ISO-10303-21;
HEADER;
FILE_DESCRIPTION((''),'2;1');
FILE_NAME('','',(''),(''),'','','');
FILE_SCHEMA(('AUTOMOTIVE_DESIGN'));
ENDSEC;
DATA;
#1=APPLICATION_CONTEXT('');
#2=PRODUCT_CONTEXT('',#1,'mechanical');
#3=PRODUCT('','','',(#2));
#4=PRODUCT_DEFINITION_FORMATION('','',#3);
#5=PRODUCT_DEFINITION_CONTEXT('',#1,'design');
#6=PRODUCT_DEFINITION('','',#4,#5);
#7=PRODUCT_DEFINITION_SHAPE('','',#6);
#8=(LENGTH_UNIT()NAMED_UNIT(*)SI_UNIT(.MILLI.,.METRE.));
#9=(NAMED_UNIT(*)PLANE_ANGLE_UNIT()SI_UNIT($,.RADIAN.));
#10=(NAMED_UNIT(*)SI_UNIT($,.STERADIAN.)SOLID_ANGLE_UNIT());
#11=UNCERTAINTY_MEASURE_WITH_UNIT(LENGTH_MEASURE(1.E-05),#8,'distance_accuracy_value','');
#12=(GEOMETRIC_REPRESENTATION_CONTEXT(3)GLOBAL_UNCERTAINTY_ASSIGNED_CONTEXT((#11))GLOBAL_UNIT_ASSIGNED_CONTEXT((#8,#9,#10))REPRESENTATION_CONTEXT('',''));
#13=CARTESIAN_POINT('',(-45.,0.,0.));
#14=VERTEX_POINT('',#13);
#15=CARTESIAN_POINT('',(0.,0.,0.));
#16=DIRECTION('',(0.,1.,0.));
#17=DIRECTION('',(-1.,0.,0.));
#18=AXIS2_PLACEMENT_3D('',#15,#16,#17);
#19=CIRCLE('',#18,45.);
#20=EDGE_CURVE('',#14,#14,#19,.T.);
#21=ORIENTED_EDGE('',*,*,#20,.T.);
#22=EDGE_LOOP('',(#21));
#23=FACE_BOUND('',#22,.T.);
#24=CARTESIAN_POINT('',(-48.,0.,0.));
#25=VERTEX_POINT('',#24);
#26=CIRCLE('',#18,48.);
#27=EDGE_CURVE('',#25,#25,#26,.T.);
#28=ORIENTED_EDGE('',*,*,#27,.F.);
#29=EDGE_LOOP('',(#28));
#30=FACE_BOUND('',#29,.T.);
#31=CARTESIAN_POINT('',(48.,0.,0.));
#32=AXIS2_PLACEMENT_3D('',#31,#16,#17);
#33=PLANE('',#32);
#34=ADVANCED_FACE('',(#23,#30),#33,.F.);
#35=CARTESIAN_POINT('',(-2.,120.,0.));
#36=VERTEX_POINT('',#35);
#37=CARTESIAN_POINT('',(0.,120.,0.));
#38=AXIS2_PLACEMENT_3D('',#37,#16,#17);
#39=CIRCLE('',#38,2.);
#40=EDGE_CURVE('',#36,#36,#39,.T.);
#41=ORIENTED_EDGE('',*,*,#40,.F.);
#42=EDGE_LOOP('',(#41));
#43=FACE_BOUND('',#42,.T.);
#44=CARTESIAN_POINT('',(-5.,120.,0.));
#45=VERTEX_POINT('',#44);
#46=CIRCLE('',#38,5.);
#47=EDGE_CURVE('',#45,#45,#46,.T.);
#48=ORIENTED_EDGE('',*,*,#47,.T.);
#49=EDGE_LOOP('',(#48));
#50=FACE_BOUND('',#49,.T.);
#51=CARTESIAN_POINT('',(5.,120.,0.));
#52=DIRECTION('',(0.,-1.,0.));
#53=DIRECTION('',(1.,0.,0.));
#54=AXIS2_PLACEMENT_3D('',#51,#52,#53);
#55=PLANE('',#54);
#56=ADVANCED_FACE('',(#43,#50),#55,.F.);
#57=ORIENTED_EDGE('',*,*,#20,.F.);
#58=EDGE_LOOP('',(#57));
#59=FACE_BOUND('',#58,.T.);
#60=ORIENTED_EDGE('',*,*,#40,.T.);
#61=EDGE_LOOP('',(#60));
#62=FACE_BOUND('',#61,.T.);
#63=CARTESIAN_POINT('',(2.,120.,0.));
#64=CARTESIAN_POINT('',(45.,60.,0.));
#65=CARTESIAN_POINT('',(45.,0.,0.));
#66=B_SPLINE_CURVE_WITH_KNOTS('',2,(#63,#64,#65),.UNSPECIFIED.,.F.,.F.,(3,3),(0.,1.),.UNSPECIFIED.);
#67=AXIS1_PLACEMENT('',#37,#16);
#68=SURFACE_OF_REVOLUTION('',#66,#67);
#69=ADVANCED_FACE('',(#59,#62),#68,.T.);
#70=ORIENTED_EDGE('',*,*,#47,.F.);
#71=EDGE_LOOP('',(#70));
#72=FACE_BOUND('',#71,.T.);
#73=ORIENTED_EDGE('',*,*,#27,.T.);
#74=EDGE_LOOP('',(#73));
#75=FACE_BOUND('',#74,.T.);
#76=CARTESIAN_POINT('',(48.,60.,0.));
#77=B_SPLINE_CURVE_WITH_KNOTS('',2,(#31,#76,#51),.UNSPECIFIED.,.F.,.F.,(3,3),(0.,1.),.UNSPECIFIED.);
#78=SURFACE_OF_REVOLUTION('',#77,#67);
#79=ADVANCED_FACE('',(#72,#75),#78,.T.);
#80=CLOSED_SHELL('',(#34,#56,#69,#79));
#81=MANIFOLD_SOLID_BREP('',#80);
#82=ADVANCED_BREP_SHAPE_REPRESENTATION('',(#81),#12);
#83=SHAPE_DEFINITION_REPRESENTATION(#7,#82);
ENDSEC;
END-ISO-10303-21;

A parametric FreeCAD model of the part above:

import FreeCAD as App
import Part
import Sketcher

doc = App.newDocument("Part")
body = doc.addObject("PartDesign::Body", "Body")

# Sketch on XY plane
sketch1 = doc.addObject("Sketcher::SketchObject", "Sketch")
body.addObject(sketch1)
sketch1.AttachmentSupport = (doc.XY_Plane, [""])
sketch1.MapMode = "FlatFace"
sketch1.addGeometry([
    Part.LineSegment(App.Vector(5, 120, 0), App.Vector(2, 120, 0)),
    Part.BSplineCurve([App.Vector(45, 0, 0), App.Vector(45, 60, 0), App.Vector(2, 120, 0)], [3, 3], [0, 1], False, 2, [1, 1, 1], False),
    Part.LineSegment(App.Vector(45, 0, 0), App.Vector(48, 0, 0)),
    Part.BSplineCurve([App.Vector(48, 0, 0), App.Vector(48, 60, 0), App.Vector(5, 120, 0)], [3, 3], [0, 1], False, 2, [1, 1, 1], False),
], False)
sketch1.addConstraint([
    Sketcher.Constraint("Block", 1),
    Sketcher.Constraint("Block", 3),
    Sketcher.Constraint("Coincident", 0, 2, 1, 2),
    Sketcher.Constraint("Coincident", 1, 1, 2, 1),
    Sketcher.Constraint("Coincident", 2, 2, 3, 1),
    Sketcher.Constraint("Coincident", 3, 2, 0, 1),
])
revolution = doc.addObject("PartDesign::Revolution", "Revolution")
body.addObject(revolution)
revolution.Profile = sketch1
revolution.ReferenceAxis = (sketch1, ["V_Axis"])
revolution.Angle = 360

doc.recompute()
